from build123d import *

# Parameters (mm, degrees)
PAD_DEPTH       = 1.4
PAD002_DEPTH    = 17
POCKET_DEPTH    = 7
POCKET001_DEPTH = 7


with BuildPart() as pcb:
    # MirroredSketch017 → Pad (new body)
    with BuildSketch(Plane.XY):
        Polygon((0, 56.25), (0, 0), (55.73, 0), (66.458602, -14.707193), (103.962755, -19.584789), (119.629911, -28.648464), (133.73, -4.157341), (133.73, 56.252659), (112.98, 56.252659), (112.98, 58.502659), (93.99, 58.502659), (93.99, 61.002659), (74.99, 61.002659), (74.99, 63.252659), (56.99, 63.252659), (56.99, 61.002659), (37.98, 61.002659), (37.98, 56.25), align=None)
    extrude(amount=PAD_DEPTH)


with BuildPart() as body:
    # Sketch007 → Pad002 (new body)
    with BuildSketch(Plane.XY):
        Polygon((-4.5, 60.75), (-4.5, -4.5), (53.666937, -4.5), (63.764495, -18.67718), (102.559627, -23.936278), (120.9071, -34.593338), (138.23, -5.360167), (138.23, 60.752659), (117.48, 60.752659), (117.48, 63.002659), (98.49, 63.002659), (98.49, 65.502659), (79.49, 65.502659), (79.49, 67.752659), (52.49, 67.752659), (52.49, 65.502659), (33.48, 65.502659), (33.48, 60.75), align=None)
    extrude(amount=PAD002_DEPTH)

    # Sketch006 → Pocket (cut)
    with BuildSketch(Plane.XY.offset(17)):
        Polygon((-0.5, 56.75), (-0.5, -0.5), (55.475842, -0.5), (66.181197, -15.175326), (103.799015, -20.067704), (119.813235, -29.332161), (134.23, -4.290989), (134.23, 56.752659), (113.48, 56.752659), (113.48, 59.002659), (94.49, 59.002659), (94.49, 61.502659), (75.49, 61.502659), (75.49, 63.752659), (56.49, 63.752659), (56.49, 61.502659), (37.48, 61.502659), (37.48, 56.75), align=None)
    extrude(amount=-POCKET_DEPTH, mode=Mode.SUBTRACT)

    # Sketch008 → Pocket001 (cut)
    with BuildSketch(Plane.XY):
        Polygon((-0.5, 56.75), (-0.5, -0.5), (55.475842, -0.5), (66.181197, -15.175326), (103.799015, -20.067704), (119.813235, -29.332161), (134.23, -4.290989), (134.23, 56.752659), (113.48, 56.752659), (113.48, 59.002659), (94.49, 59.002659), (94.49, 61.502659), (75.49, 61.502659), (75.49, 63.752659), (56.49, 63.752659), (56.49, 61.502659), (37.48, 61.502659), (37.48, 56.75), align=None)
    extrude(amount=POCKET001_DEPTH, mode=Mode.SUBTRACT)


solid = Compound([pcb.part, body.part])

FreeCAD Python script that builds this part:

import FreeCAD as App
import Part
import Sketcher

V = App.Vector
Q = App.Units.Quantity

doc = App.newDocument("Part")
body = doc.addObject("PartDesign::Body", "Body")

# Sketch on XY plane
sketch1 = doc.addObject("Sketcher::SketchObject", "Sketch")
body.addObject(sketch1)
sketch1.AttachmentSupport = (doc.XY_Plane, [""])
sketch1.MapMode = "FlatFace"
sketch1.addGeometry([
    Part.LineSegment(V(0, 56.2, 0), V(0, 0, 0)),  # 0
    Part.LineSegment(V(0, 0, 0), V(55.7, 0, 0)),  # 1
    Part.LineSegment(V(55.7, 0, 0), V(66.5, -14.7, 0)),  # 2
    Part.LineSegment(V(66.5, -14.7, 0), V(104, -19.6, 0)),  # 3
    Part.LineSegment(V(104, -19.6, 0), V(119.6, -28.6, 0)),  # 4
    Part.LineSegment(V(119.6, -28.6, 0), V(133.7, -4.2, 0)),  # 5
    Part.LineSegment(V(133.7, -4.2, 0), V(133.7, 56.3, 0)),  # 6
    Part.LineSegment(V(133.7, 56.3, 0), V(113, 56.3, 0)),  # 7
    Part.LineSegment(V(113, 56.3, 0), V(113, 58.5, 0)),  # 8
    Part.LineSegment(V(113, 58.5, 0), V(94, 58.5, 0)),  # 9
    Part.LineSegment(V(94, 58.5, 0), V(94, 61, 0)),  # 10
    Part.LineSegment(V(94, 61, 0), V(75, 61, 0)),  # 11
    Part.LineSegment(V(75, 61, 0), V(75, 63.3, 0)),  # 12
    Part.LineSegment(V(75, 63.3, 0), V(57, 63.3, 0)),  # 13
    Part.LineSegment(V(57, 63.3, 0), V(57, 61, 0)),  # 14
    Part.LineSegment(V(57, 61, 0), V(38, 61, 0)),  # 15
    Part.LineSegment(V(38, 61, 0), V(38, 56.2, 0)),  # 16
    Part.LineSegment(V(38, 56.2, 0), V(0, 56.2, 0)),  # 17
], False)
sketch1.addConstraint([
    Sketcher.Constraint("Coincident", 0, 2, 1, 1),
    Sketcher.Constraint("Coincident", 1, 2, 2, 1),
    Sketcher.Constraint("Coincident", 2, 2, 3, 1),
    Sketcher.Constraint("Coincident", 3, 2, 4, 1),
    Sketcher.Constraint("Coincident", 4, 2, 5, 1),
    Sketcher.Constraint("Coincident", 5, 2, 6, 1),
    Sketcher.Constraint("Coincident", 6, 2, 7, 1),
    Sketcher.Constraint("Coincident", 7, 2, 8, 1),
    Sketcher.Constraint("Coincident", 8, 2, 9, 1),
    Sketcher.Constraint("Coincident", 9, 2, 10, 1),
    Sketcher.Constraint("Coincident", 10, 2, 11, 1),
    Sketcher.Constraint("Coincident", 11, 2, 12, 1),
    Sketcher.Constraint("Coincident", 12, 2, 13, 1),
    Sketcher.Constraint("Coincident", 13, 2, 14, 1),
    Sketcher.Constraint("Coincident", 14, 2, 15, 1),
    Sketcher.Constraint("Coincident", 15, 2, 16, 1),
    Sketcher.Constraint("Coincident", 16, 2, 17, 1),
    Sketcher.Constraint("Coincident", 17, 2, 0, 1),
    Sketcher.Constraint("Vertical", 0),
    Sketcher.Constraint("Horizontal", 1),
    Sketcher.Constraint("Vertical", 6),
    Sketcher.Constraint("Horizontal", 7),
    Sketcher.Constraint("Vertical", 8),
    Sketcher.Constraint("Horizontal", 9),
    Sketcher.Constraint("Vertical", 10),
    Sketcher.Constraint("Horizontal", 11),
    Sketcher.Constraint("Vertical", 12),
    Sketcher.Constraint("Horizontal", 13),
    Sketcher.Constraint("Vertical", 14),
    Sketcher.Constraint("Horizontal", 15),
    Sketcher.Constraint("Vertical", 16),
    Sketcher.Constraint("Horizontal", 17),
    Sketcher.Constraint("Coincident", 0, 2, -1, 1),
    Sketcher.Constraint("Horizontal", 11, 2, 14, 2),
    Sketcher.Constraint("Equal", 8, 12),
    Sketcher.Constraint("DistanceX", 11, 2, 11, 1, 19.0),
    Sketcher.Constraint("DistanceX", 13, 2, 13, 1, 18.0),
    Sketcher.Constraint("DistanceY", 10, 1, 10, 2, 2.5),
    Sketcher.Constraint("DistanceX", 1, 2, 5, 2, 78.0),
    Sketcher.Constraint("DistanceY", 7, 2, 12, 2, 7.0),
    Sketcher.Constraint("Distance", 4, 18.099999),
    Sketcher.Constraint("DistanceX", 1, 1, 1, 2, 55.73),
    Sketcher.Constraint("DistanceX", 7, 2, 7, 1, 20.75),
    Sketcher.Constraint("DistanceX", 9, 2, 9, 1, 18.99),
    Sketcher.Constraint("DistanceX", 15, 2, 15, 1, 19.01),
    Sketcher.Constraint("DistanceY", 0, 2, 0, 1, 56.25),
    Sketcher.Constraint("DistanceY", 6, 1, 6, 2, 60.41),
    Sketcher.Constraint("Angle", 2, Q("-53.89 deg")),
    Sketcher.Constraint("Angle", 3, Q("-7.410001 deg")),
    Sketcher.Constraint("Angle", 4, Q("-30.049999 deg")),
    Sketcher.Constraint("Angle", 5, Q("60.07 deg")),
    Sketcher.Constraint("Distance", 3, 37.82),
    Sketcher.Constraint("Distance", 5, 28.26),
])
pad1 = doc.addObject("PartDesign::Pad", "Pad")
body.addObject(pad1)
pad1.Profile = sketch1
pad1.Length = 1.4
body2 = doc.addObject("PartDesign::Body", "Body001")

# Sketch on XY plane
sketch2 = doc.addObject("Sketcher::SketchObject", "Sketch001")
body2.addObject(sketch2)
sketch2.AttachmentSupport = (doc.getObject("XY_Plane001"), [""])
sketch2.MapMode = "FlatFace"
sketch2.addGeometry([
    Part.LineSegment(V(-4.5, 60.8, 0), V(-4.5, -4.5, 0)),  # 0
    Part.LineSegment(V(-4.5, -4.5, 0), V(53.7, -4.5, 0)),  # 1
    Part.LineSegment(V(53.7, -4.5, 0), V(63.8, -18.7, 0)),  # 2
    Part.LineSegment(V(63.8, -18.7, 0), V(102.6, -23.9, 0)),  # 3
    Part.LineSegment(V(102.6, -23.9, 0), V(120.9, -34.6, 0)),  # 4
    Part.LineSegment(V(120.9, -34.6, 0), V(138.2, -5.4, 0)),  # 5
    Part.LineSegment(V(138.2, -5.4, 0), V(138.2, 60.8, 0)),  # 6
    Part.LineSegment(V(138.2, 60.8, 0), V(117.5, 60.8, 0)),  # 7
    Part.LineSegment(V(117.5, 60.8, 0), V(117.5, 63, 0)),  # 8
    Part.LineSegment(V(117.5, 63, 0), V(98.5, 63, 0)),  # 9
    Part.LineSegment(V(98.5, 63, 0), V(98.5, 65.5, 0)),  # 10
    Part.LineSegment(V(98.5, 65.5, 0), V(79.5, 65.5, 0)),  # 11
    Part.LineSegment(V(79.5, 65.5, 0), V(79.5, 67.8, 0)),  # 12
    Part.LineSegment(V(79.5, 67.8, 0), V(52.5, 67.8, 0)),  # 13
    Part.LineSegment(V(52.5, 67.8, 0), V(52.5, 65.5, 0)),  # 14
    Part.LineSegment(V(52.5, 65.5, 0), V(33.5, 65.5, 0)),  # 15
    Part.LineSegment(V(33.5, 65.5, 0), V(33.5, 60.8, 0)),  # 16
    Part.LineSegment(V(33.5, 60.8, 0), V(-4.5, 60.8, 0)),  # 17
], False)
sketch2.addConstraint([
    Sketcher.Constraint("Coincident", 0, 2, 1, 1),
    Sketcher.Constraint("Coincident", 1, 2, 2, 1),
    Sketcher.Constraint("Coincident", 2, 2, 3, 1),
    Sketcher.Constraint("Coincident", 3, 2, 4, 1),
    Sketcher.Constraint("Coincident", 4, 2, 5, 1),
    Sketcher.Constraint("Coincident", 5, 2, 6, 1),
    Sketcher.Constraint("Coincident", 6, 2, 7, 1),
    Sketcher.Constraint("Coincident", 7, 2, 8, 1),
    Sketcher.Constraint("Coincident", 8, 2, 9, 1),
    Sketcher.Constraint("Coincident", 9, 2, 10, 1),
    Sketcher.Constraint("Coincident", 10, 2, 11, 1),
    Sketcher.Constraint("Coincident", 11, 2, 12, 1),
    Sketcher.Constraint("Coincident", 12, 2, 13, 1),
    Sketcher.Constraint("Coincident", 13, 2, 14, 1),
    Sketcher.Constraint("Coincident", 14, 2, 15, 1),
    Sketcher.Constraint("Coincident", 15, 2, 16, 1),
    Sketcher.Constraint("Coincident", 16, 2, 17, 1),
    Sketcher.Constraint("Coincident", 17, 2, 0, 1),
    Sketcher.Constraint("Vertical", 0),
    Sketcher.Constraint("Horizontal", 1),
    Sketcher.Constraint("Vertical", 6),
    Sketcher.Constraint("Horizontal", 7),
    Sketcher.Constraint("Vertical", 8),
    Sketcher.Constraint("Horizontal", 9),
    Sketcher.Constraint("Vertical", 10),
    Sketcher.Constraint("Horizontal", 11),
    Sketcher.Constraint("Vertical", 12),
    Sketcher.Constraint("Horizontal", 13),
    Sketcher.Constraint("Vertical", 14),
    Sketcher.Constraint("Horizontal", 15),
    Sketcher.Constraint("Vertical", 16),
    Sketcher.Constraint("Horizontal", 17),
    Sketcher.Constraint("Horizontal", 11, 2, 14, 2),
    Sketcher.Constraint("Equal", 8, 12),
    Sketcher.Constraint("DistanceX", 11, 2, 11, 1, 19.0),
    Sketcher.Constraint("DistanceX", 13, 2, 13, 1, 27.0),
    Sketcher.Constraint("DistanceY", 10, 1, 10, 2, 2.5),
    Sketcher.Constraint("DistanceY", 7, 2, 12, 2, 7.0),
    Sketcher.Constraint("DistanceX", 7, 2, 7, 1, 20.75),
    Sketcher.Constraint("DistanceX", 9, 2, 9, 1, 18.99),
    Sketcher.Constraint("DistanceX", 15, 2, 15, 1, 19.01),
    Sketcher.Constraint("DistanceX", 17, 2, 17, 1, 37.98),
    Sketcher.Constraint("DistanceY", 0, 2, 0, 1, 65.25),
    Sketcher.Constraint("DistanceX", 0, 2, -1, 1, 4.5),
    Sketcher.Constraint("DistanceY", 0, 2, -1, 1, 4.5),
    Sketcher.Constraint("Angle", 2, Q("-54.540001 deg")),
    Sketcher.Constraint("Angle", 3, Q("-7.72 deg")),
    Sketcher.Constraint("Angle", 4, Q("-30.149999 deg")),
    Sketcher.Constraint("Angle", 5, Q("59.35 deg")),
    Sketcher.Constraint("DistanceY", 16, 2, 16, 1, 4.752659),
    Sketcher.Constraint("DistanceX", -1, 1, 4, 2, 120.9071),
    Sketcher.Constraint("DistanceY", 3, 2, 2, 2, 5.259098),
    Sketcher.Constraint("Distance", 2, 17.405548),
    Sketcher.Constraint("Distance", 4, 21.21798),
])
pad2 = doc.addObject("PartDesign::Pad", "Pad001")
body2.addObject(pad2)
pad2.Profile = sketch2
pad2.Length = 17

# Sketch on XY plane
sketch3 = doc.addObject("Sketcher::SketchObject", "Sketch002")
body2.addObject(sketch3)
sketch3.AttachmentSupport = (doc.getObject("XY_Plane001"), [""])
sketch3.MapMode = "FlatFace"
sketch3.AttachmentOffset = App.Placement(V(0, 0, 17), App.Rotation())
sketch3.addGeometry([
    Part.LineSegment(V(-0.5, 56.8, 0), V(-0.5, -0.5, 0)),  # 0
    Part.LineSegment(V(-0.5, -0.5, 0), V(55.5, -0.5, 0)),  # 1
    Part.LineSegment(V(55.5, -0.5, 0), V(66.2, -15.2, 0)),  # 2
    Part.LineSegment(V(66.2, -15.2, 0), V(103.8, -20.1, 0)),  # 3
    Part.LineSegment(V(103.8, -20.1, 0), V(119.8, -29.3, 0)),  # 4
    Part.LineSegment(V(119.8, -29.3, 0), V(134.2, -4.3, 0)),  # 5
    Part.LineSegment(V(134.2, -4.3, 0), V(134.2, 56.8, 0)),  # 6
    Part.LineSegment(V(134.2, 56.8, 0), V(113.5, 56.8, 0)),  # 7
    Part.LineSegment(V(113.5, 56.8, 0), V(113.5, 59, 0)),  # 8
    Part.LineSegment(V(113.5, 59, 0), V(94.5, 59, 0)),  # 9
    Part.LineSegment(V(94.5, 59, 0), V(94.5, 61.5, 0)),  # 10
    Part.LineSegment(V(94.5, 61.5, 0), V(75.5, 61.5, 0)),  # 11
    Part.LineSegment(V(75.5, 61.5, 0), V(75.5, 63.8, 0)),  # 12
    Part.LineSegment(V(75.5, 63.8, 0), V(56.5, 63.8, 0)),  # 13
    Part.LineSegment(V(56.5, 63.8, 0), V(56.5, 61.5, 0)),  # 14
    Part.LineSegment(V(56.5, 61.5, 0), V(37.5, 61.5, 0)),  # 15
    Part.LineSegment(V(37.5, 61.5, 0), V(37.5, 56.8, 0)),  # 16
    Part.LineSegment(V(37.5, 56.8, 0), V(-0.5, 56.8, 0)),  # 17
], False)
sketch3.addConstraint([
    Sketcher.Constraint("Coincident", 0, 2, 1, 1),
    Sketcher.Constraint("Coincident", 1, 2, 2, 1),
    Sketcher.Constraint("Coincident", 2, 2, 3, 1),
    Sketcher.Constraint("Coincident", 3, 2, 4, 1),
    Sketcher.Constraint("Coincident", 4, 2, 5, 1),
    Sketcher.Constraint("Coincident", 5, 2, 6, 1),
    Sketcher.Constraint("Coincident", 6, 2, 7, 1),
    Sketcher.Constraint("Coincident", 7, 2, 8, 1),
    Sketcher.Constraint("Coincident", 8, 2, 9, 1),
    Sketcher.Constraint("Coincident", 9, 2, 10, 1),
    Sketcher.Constraint("Coincident", 10, 2, 11, 1),
    Sketcher.Constraint("Coincident", 11, 2, 12, 1),
    Sketcher.Constraint("Coincident", 12, 2, 13, 1),
    Sketcher.Constraint("Coincident", 13, 2, 14, 1),
    Sketcher.Constraint("Coincident", 14, 2, 15, 1),
    Sketcher.Constraint("Coincident", 15, 2, 16, 1),
    Sketcher.Constraint("Coincident", 16, 2, 17, 1),
    Sketcher.Constraint("Coincident", 17, 2, 0, 1),
    Sketcher.Constraint("Vertical", 0),
    Sketcher.Constraint("Horizontal", 1),
    Sketcher.Constraint("Vertical", 6),
    Sketcher.Constraint("Horizontal", 7),
    Sketcher.Constraint("Vertical", 8),
    Sketcher.Constraint("Horizontal", 9),
    Sketcher.Constraint("Vertical", 10),
    Sketcher.Constraint("Horizontal", 11),
    Sketcher.Constraint("Vertical", 12),
    Sketcher.Constraint("Horizontal", 13),
    Sketcher.Constraint("Vertical", 14),
    Sketcher.Constraint("Horizontal", 15),
    Sketcher.Constraint("Vertical", 16),
    Sketcher.Constraint("Horizontal", 17),
    Sketcher.Constraint("Horizontal", 11, 2, 14, 2),
    Sketcher.Constraint("Equal", 11, 13),
    Sketcher.Constraint("Equal", 8, 12),
    Sketcher.Constraint("DistanceX", 11, 2, 11, 1, 19.0),
    Sketcher.Constraint("DistanceY", 10, 1, 10, 2, 2.5),
    Sketcher.Constraint("DistanceY", 7, 2, 12, 2, 7.0),
    Sketcher.Constraint("DistanceX", 7, 2, 7, 1, 20.75),
    Sketcher.Constraint("DistanceX", 9, 2, 9, 1, 18.99),
    Sketcher.Constraint("DistanceX", 15, 2, 15, 1, 19.01),
    Sketcher.Constraint("DistanceX", 17, 2, 17, 1, 37.98),
    Sketcher.Constraint("DistanceY", 0, 2, 0, 1, 57.25),
    Sketcher.Constraint("DistanceX", 0, 2, -1, 1, 0.5),
    Sketcher.Constraint("DistanceY", 0, 2, -1, 1, 0.5),
    Sketcher.Constraint("Angle", 2, Q("-53.890002 deg")),
    Sketcher.Constraint("Angle", 3, Q("-7.41 deg")),
    Sketcher.Constraint("Angle", 4, Q("-30.05 deg")),
    Sketcher.Constraint("Angle", 5, Q("60.07 deg")),
    Sketcher.Constraint("DistanceY", 6, 1, 6, 2, 61.043648),
    Sketcher.Constraint("DistanceY", 16, 2, 16, 1, 4.752659),
    Sketcher.Constraint("Distance", 2, 18.165071),
    Sketcher.Constraint("DistanceX", 1, 1, 1, 2, 55.975842),
    Sketcher.Constraint("DistanceY", 4, 2, -1, 1, 29.332161),
])
pocket1 = doc.addObject("PartDesign::Pocket", "Pocket")
body2.addObject(pocket1)
pocket1.Profile = sketch3
pocket1.Length = 7

# Sketch on XY plane
sketch4 = doc.addObject("Sketcher::SketchObject", "Sketch003")
body2.addObject(sketch4)
sketch4.AttachmentSupport = (doc.getObject("XY_Plane001"), [""])
sketch4.MapMode = "FlatFace"
sketch4.addGeometry([
    Part.LineSegment(V(-0.5, 56.8, 0), V(-0.5, -0.5, 0)),  # 0
    Part.LineSegment(V(-0.5, -0.5, 0), V(55.5, -0.5, 0)),  # 1
    Part.LineSegment(V(55.5, -0.5, 0), V(66.2, -15.2, 0)),  # 2
    Part.LineSegment(V(66.2, -15.2, 0), V(103.8, -20.1, 0)),  # 3
    Part.LineSegment(V(103.8, -20.1, 0), V(119.8, -29.3, 0)),  # 4
    Part.LineSegment(V(119.8, -29.3, 0), V(134.2, -4.3, 0)),  # 5
    Part.LineSegment(V(134.2, -4.3, 0), V(134.2, 56.8, 0)),  # 6
    Part.LineSegment(V(134.2, 56.8, 0), V(113.5, 56.8, 0)),  # 7
    Part.LineSegment(V(113.5, 56.8, 0), V(113.5, 59, 0)),  # 8
    Part.LineSegment(V(113.5, 59, 0), V(94.5, 59, 0)),  # 9
    Part.LineSegment(V(94.5, 59, 0), V(94.5, 61.5, 0)),  # 10
    Part.LineSegment(V(94.5, 61.5, 0), V(75.5, 61.5, 0)),  # 11
    Part.LineSegment(V(75.5, 61.5, 0), V(75.5, 63.8, 0)),  # 12
    Part.LineSegment(V(75.5, 63.8, 0), V(56.5, 63.8, 0)),  # 13
    Part.LineSegment(V(56.5, 63.8, 0), V(56.5, 61.5, 0)),  # 14
    Part.LineSegment(V(56.5, 61.5, 0), V(37.5, 61.5, 0)),  # 15
    Part.LineSegment(V(37.5, 61.5, 0), V(37.5, 56.8, 0)),  # 16
    Part.LineSegment(V(37.5, 56.8, 0), V(-0.5, 56.8, 0)),  # 17
], False)
sketch4.addConstraint([
    Sketcher.Constraint("Coincident", 0, 2, 1, 1),
    Sketcher.Constraint("Coincident", 1, 2, 2, 1),
    Sketcher.Constraint("Coincident", 2, 2, 3, 1),
    Sketcher.Constraint("Coincident", 3, 2, 4, 1),
    Sketcher.Constraint("Coincident", 4, 2, 5, 1),
    Sketcher.Constraint("Coincident", 5, 2, 6, 1),
    Sketcher.Constraint("Coincident", 6, 2, 7, 1),
    Sketcher.Constraint("Coincident", 7, 2, 8, 1),
    Sketcher.Constraint("Coincident", 8, 2, 9, 1),
    Sketcher.Constraint("Coincident", 9, 2, 10, 1),
    Sketcher.Constraint("Coincident", 10, 2, 11, 1),
    Sketcher.Constraint("Coincident", 11, 2, 12, 1),
    Sketcher.Constraint("Coincident", 12, 2, 13, 1),
    Sketcher.Constraint("Coincident", 13, 2, 14, 1),
    Sketcher.Constraint("Coincident", 14, 2, 15, 1),
    Sketcher.Constraint("Coincident", 15, 2, 16, 1),
    Sketcher.Constraint("Coincident", 16, 2, 17, 1),
    Sketcher.Constraint("Coincident", 17, 2, 0, 1),
    Sketcher.Constraint("Vertical", 0),
    Sketcher.Constraint("Horizontal", 1),
    Sketcher.Constraint("Vertical", 6),
    Sketcher.Constraint("Horizontal", 7),
    Sketcher.Constraint("Vertical", 8),
    Sketcher.Constraint("Horizontal", 9),
    Sketcher.Constraint("Vertical", 10),
    Sketcher.Constraint("Horizontal", 11),
    Sketcher.Constraint("Vertical", 12),
    Sketcher.Constraint("Horizontal", 13),
    Sketcher.Constraint("Vertical", 14),
    Sketcher.Constraint("Horizontal", 15),
    Sketcher.Constraint("Vertical", 16),
    Sketcher.Constraint("Horizontal", 17),
    Sketcher.Constraint("Horizontal", 11, 2, 14, 2),
    Sketcher.Constraint("Equal", 11, 13),
    Sketcher.Constraint("Equal", 8, 12),
    Sketcher.Constraint("DistanceX", 11, 2, 11, 1, 19.0),
    Sketcher.Constraint("DistanceY", 10, 1, 10, 2, 2.5),
    Sketcher.Constraint("DistanceY", 7, 2, 12, 2, 7.0),
    Sketcher.Constraint("DistanceX", 7, 2, 7, 1, 20.75),
    Sketcher.Constraint("DistanceX", 9, 2, 9, 1, 18.99),
    Sketcher.Constraint("DistanceX", 15, 2, 15, 1, 19.01),
    Sketcher.Constraint("DistanceX", 17, 2, 17, 1, 37.98),
    Sketcher.Constraint("DistanceY", 0, 2, 0, 1, 57.25),
    Sketcher.Constraint("DistanceX", 0, 2, -1, 1, 0.5),
    Sketcher.Constraint("DistanceY", 0, 2, -1, 1, 0.5),
    Sketcher.Constraint("Angle", 2, Q("-53.890002 deg")),
    Sketcher.Constraint("Angle", 3, Q("-7.41 deg")),
    Sketcher.Constraint("Angle", 4, Q("-30.05 deg")),
    Sketcher.Constraint("Angle", 5, Q("60.07 deg")),
    Sketcher.Constraint("DistanceY", 6, 1, 6, 2, 61.043648),
    Sketcher.Constraint("DistanceY", 16, 2, 16, 1, 4.752659),
    Sketcher.Constraint("Distance", 2, 18.165071),
    Sketcher.Constraint("DistanceX", 1, 1, 1, 2, 55.975842),
    Sketcher.Constraint("DistanceY", 4, 2, -1, 1, 29.332161),
])
pocket2 = doc.addObject("PartDesign::Pocket", "Pocket001")
body2.addObject(pocket2)
pocket2.Profile = sketch4
pocket2.Length = 7
pocket2.Reversed = True

doc.recompute()
